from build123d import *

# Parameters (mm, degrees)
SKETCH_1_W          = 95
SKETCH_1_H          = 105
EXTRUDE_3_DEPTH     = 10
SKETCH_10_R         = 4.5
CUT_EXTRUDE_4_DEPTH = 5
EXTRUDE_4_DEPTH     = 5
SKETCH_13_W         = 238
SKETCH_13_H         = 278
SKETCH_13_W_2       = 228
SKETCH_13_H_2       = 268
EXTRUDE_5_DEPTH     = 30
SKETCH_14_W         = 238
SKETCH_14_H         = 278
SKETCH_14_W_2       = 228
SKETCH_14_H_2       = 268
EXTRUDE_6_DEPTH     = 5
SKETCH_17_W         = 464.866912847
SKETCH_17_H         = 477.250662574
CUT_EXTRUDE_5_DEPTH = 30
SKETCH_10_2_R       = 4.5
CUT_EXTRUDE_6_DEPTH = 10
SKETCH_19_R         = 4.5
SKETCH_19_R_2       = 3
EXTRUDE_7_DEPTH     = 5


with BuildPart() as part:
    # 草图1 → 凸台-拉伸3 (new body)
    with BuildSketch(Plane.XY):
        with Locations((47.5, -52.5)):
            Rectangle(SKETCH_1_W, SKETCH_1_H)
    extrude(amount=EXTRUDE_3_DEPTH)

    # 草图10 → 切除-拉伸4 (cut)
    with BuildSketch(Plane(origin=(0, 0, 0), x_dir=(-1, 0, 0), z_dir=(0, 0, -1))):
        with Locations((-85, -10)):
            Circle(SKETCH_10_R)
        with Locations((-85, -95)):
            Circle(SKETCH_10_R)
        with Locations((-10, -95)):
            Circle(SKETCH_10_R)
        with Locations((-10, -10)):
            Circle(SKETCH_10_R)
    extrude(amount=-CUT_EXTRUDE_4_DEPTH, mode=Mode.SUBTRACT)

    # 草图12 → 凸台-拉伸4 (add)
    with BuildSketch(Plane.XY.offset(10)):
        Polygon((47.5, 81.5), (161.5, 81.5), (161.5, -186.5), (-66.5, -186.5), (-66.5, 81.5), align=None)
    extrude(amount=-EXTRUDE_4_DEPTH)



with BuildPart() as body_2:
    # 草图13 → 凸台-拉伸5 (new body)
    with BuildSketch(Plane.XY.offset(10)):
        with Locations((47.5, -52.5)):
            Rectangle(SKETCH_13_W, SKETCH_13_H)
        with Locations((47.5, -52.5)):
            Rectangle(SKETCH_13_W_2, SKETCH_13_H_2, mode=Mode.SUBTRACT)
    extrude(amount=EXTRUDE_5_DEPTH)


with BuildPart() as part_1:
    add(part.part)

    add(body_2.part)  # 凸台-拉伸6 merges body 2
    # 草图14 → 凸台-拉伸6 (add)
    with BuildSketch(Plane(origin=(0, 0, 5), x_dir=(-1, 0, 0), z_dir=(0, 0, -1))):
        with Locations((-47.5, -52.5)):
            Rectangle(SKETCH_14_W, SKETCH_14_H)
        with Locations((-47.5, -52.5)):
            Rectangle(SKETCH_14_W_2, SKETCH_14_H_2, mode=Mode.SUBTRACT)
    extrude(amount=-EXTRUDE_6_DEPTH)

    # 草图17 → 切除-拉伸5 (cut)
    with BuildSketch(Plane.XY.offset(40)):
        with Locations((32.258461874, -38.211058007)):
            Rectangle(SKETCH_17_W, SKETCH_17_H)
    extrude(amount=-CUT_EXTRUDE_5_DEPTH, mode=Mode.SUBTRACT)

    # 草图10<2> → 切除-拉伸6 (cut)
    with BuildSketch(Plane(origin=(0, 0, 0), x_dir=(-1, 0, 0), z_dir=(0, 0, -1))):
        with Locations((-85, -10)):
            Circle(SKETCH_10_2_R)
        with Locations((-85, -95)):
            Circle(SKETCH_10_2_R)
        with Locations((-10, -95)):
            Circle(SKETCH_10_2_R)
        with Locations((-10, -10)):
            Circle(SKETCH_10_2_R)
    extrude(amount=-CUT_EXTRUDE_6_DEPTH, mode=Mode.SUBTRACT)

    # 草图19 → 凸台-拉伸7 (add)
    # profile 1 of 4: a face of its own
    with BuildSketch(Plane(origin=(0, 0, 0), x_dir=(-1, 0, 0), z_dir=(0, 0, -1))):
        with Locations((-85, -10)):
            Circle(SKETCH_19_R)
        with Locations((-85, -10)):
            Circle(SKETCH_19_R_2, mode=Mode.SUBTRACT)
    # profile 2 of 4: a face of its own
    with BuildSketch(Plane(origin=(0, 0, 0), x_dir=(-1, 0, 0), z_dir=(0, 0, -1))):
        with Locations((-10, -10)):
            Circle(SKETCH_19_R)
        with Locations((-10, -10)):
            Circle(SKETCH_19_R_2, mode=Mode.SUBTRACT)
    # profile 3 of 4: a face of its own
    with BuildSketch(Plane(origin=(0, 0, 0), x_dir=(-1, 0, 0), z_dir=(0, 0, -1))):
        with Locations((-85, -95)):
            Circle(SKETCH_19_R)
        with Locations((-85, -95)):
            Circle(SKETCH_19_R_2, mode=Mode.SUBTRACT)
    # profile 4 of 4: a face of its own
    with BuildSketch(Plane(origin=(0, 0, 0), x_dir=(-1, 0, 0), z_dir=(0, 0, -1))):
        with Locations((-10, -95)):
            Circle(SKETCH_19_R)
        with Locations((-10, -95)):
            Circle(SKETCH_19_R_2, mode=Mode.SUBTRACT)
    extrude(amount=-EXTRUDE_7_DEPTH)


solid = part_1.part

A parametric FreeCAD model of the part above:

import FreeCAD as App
import Part
import Sketcher
from FreeCAD import Vector


def add_polygon(sketch, points):
    """Adds a closed chain of lines whose ends are joined by coincident constraints."""
    first, n = sketch.GeometryCount, len(points)
    for a, b in zip(points, points[1:] + points[:1]):
        sketch.addGeometry(Part.LineSegment(App.Vector(*a, 0), App.Vector(*b, 0)), False)
    for i in range(n):
        sketch.addConstraint(Sketcher.Constraint("Coincident", first + i, 2, first + (i + 1) % n, 1))

doc = App.newDocument("Part")
body = doc.addObject("PartDesign::Body", "Body")

sketch1 = body.newObject("Sketcher::SketchObject", "Sketch")
sketch1.AttachmentSupport = (doc.getObject("XY_Plane"), [""])
sketch1.MapMode = "FlatFace"
add_polygon(sketch1, [(0, 0), (0, -105), (95, -105), (95, 0)])
sketch1.addConstraint([
    Sketcher.Constraint("Vertical", 0),
    Sketcher.Constraint("Horizontal", 1),
    Sketcher.Constraint("Vertical", 2),
    Sketcher.Constraint("Horizontal", 3),
    Sketcher.Constraint("Coincident", 3, 2, -1, 1),
    Sketcher.Constraint("DistanceX", 1, 1, 1, 2, 95.0),
    Sketcher.Constraint("DistanceY", 0, 2, 0, 1, 105.0),
])
pad1 = body.newObject("PartDesign::Pad", "Pad")
pad1.Profile = sketch1
pad1.Length = 10

sketch2 = body.newObject("Sketcher::SketchObject", "Sketch001")
sketch2.AttachmentSupport = (doc.getObject("XY_Plane"), [""])
sketch2.MapMode = "FlatFace"
sketch2.addGeometry([
    Part.Circle(Vector(85, -10, 0), Vector(0, 0, 1), 4.5),
    Part.Circle(Vector(85, -95, 0), Vector(0, 0, 1), 4.5),
    Part.Circle(Vector(10, -95, 0), Vector(0, 0, 1), 4.5),
    Part.Circle(Vector(10, -10, 0), Vector(0, 0, 1), 4.5),
], False)
sketch2.addConstraint([
    Sketcher.Constraint("Equal", 0, 1),
    Sketcher.Constraint("Equal", 1, 2),
    Sketcher.Constraint("Equal", 2, 3),
    Sketcher.Constraint("Horizontal", 1, 3, 2, 3),
    Sketcher.Constraint("Horizontal", 0, 3, 3, 3),
    Sketcher.Constraint("Vertical", 0, 3, 1, 3),
    Sketcher.Constraint("Vertical", 2, 3, 3, 3),
    Sketcher.Constraint("Diameter", 0, 9.0),
    Sketcher.Constraint("DistanceX", -1, 1, 0, 3, 85.0),
    Sketcher.Constraint("DistanceY", 0, 3, -1, 1, 10.0),
    Sketcher.Constraint("DistanceY", 1, 3, -1, 1, 95.0),
    Sketcher.Constraint("DistanceX", -1, 1, 2, 3, 10.0),
])
pocket1 = body.newObject("PartDesign::Pocket", "Pocket")
pocket1.Profile = sketch2
pocket1.Length = 5
pocket1.Reversed = True

sketch3 = body.newObject("Sketcher::SketchObject", "Sketch002")
sketch3.AttachmentSupport = (doc.getObject("XY_Plane"), [""])
sketch3.MapMode = "FlatFace"
sketch3.AttachmentOffset = App.Placement(Vector(0, 0, 10), App.Rotation())
add_polygon(sketch3, [(162, 82), (-66, 82), (-66, -186), (162, -186)])
sketch3.addConstraint([
    Sketcher.Constraint("Horizontal", 0),
    Sketcher.Constraint("Vertical", 1),
    Sketcher.Constraint("Horizontal", 2),
    Sketcher.Constraint("Vertical", 3),
    Sketcher.Constraint("DistanceX", 0, 2, 0, 1, 228.0),
    Sketcher.Constraint("DistanceY", 1, 2, 1, 1, 268.0),
    Sketcher.Constraint("DistanceX", 0, 2, -1, 1, 66.5),
    Sketcher.Constraint("DistanceY", -1, 1, 0, 2, 81.5),
])
pad2 = body.newObject("PartDesign::Pad", "Pad001")
pad2.Profile = sketch3
pad2.Length = 5
pad2.Reversed = True
body2 = doc.addObject("PartDesign::Body", "Body001")

sketch4 = body2.newObject("Sketcher::SketchObject", "Sketch003")
sketch4.AttachmentSupport = (doc.getObject("XY_Plane001"), [""])
sketch4.MapMode = "FlatFace"
sketch4.AttachmentOffset = App.Placement(Vector(0, 0, 10), App.Rotation())
add_polygon(sketch4, [(-72, 86), (-72, -192), (166, -192), (166, 86)])
add_polygon(sketch4, [(162, -186), (-66, -186), (-66, 82), (162, 82)])
sketch4.addConstraint([
    Sketcher.Constraint("Vertical", 0),
    Sketcher.Constraint("Horizontal", 1),
    Sketcher.Constraint("Vertical", 2),
    Sketcher.Constraint("Horizontal", 3),
    Sketcher.Constraint("Horizontal", 4),
    Sketcher.Constraint("Vertical", 5),
    Sketcher.Constraint("Horizontal", 6),
    Sketcher.Constraint("Vertical", 7),
    Sketcher.Constraint("DistanceX", 1, 1, 1, 2, 238.0),
    Sketcher.Constraint("DistanceX", 4, 2, 4, 1, 228.0),
    Sketcher.Constraint("DistanceY", 0, 2, 0, 1, 278.0),
    Sketcher.Constraint("DistanceY", 5, 1, 5, 2, 268.0),
    Sketcher.Constraint("DistanceX", 0, 2, 4, 2, 5.0),
    Sketcher.Constraint("DistanceY", 0, 2, 4, 2, 5.0),
    Sketcher.Constraint("DistanceX", 0, 2, -1, 1, 71.5),
    Sketcher.Constraint("DistanceY", 0, 2, -1, 1, 191.5),
])
pad3 = body2.newObject("PartDesign::Pad", "Pad002")
pad3.Profile = sketch4
pad3.Length = 30
body.AllowCompound = True
doc.recompute()

boolean = body.newObject("PartDesign::Boolean", "Boolean")
boolean.Type = "Fuse"
boolean.addObjects([body2])

sketch5 = body.newObject("Sketcher::SketchObject", "Sketch004")
sketch5.AttachmentSupport = (doc.getObject("XY_Plane"), [""])
sketch5.MapMode = "FlatFace"
sketch5.AttachmentOffset = App.Placement(Vector(0, 0, 5), App.Rotation())
add_polygon(sketch5, [(166, 86), (166, -192), (-72, -192), (-72, 86)])
add_polygon(sketch5, [(-66, -186), (162, -186), (162, 82), (-66, 82)])
sketch5.addConstraint([
    Sketcher.Constraint("Vertical", 0),
    Sketcher.Constraint("Horizontal", 1),
    Sketcher.Constraint("Vertical", 2),
    Sketcher.Constraint("Horizontal", 3),
    Sketcher.Constraint("Horizontal", 4),
    Sketcher.Constraint("Vertical", 5),
    Sketcher.Constraint("Horizontal", 6),
    Sketcher.Constraint("Vertical", 7),
    Sketcher.Constraint("DistanceX", 1, 2, 1, 1, 238.0),
    Sketcher.Constraint("DistanceX", 4, 1, 4, 2, 228.0),
    Sketcher.Constraint("DistanceY", 0, 2, 0, 1, 278.0),
    Sketcher.Constraint("DistanceY", 5, 1, 5, 2, 268.0),
    Sketcher.Constraint("DistanceX", 4, 2, 0, 2, 5.0),
    Sketcher.Constraint("DistanceY", 0, 2, 4, 2, 5.0),
    Sketcher.Constraint("DistanceX", -1, 1, 0, 2, 166.5),
    Sketcher.Constraint("DistanceY", 0, 2, -1, 1, 191.5),
])
pad4 = body.newObject("PartDesign::Pad", "Pad003")
pad4.Profile = sketch5
pad4.Length = 5

sketch6 = body.newObject("Sketcher::SketchObject", "Sketch005")
sketch6.AttachmentSupport = (doc.getObject("XY_Plane"), [""])
sketch6.MapMode = "FlatFace"
sketch6.AttachmentOffset = App.Placement(Vector(0, 0, 40), App.Rotation())
add_polygon(sketch6, [(-200, 200), (-200, -277), (265, -277), (265, 200)])
sketch6.addConstraint([
    Sketcher.Constraint("Vertical", 0),
    Sketcher.Constraint("Horizontal", 1),
    Sketcher.Constraint("Vertical", 2),
    Sketcher.Constraint("Horizontal", 3),
    Sketcher.Constraint("DistanceX", 1, 1, 1, 2, 464.866913),
    Sketcher.Constraint("DistanceY", 0, 2, 0, 1, 477.250663),
    Sketcher.Constraint("DistanceY", 0, 2, -1, 1, 276.836389),
    Sketcher.Constraint("DistanceX", -1, 1, 1, 2, 264.691918),
])
pocket2 = body.newObject("PartDesign::Pocket", "Pocket001")
pocket2.Profile = sketch6
pocket2.Length = 30

sketch7 = body.newObject("Sketcher::SketchObject", "Sketch006")
sketch7.AttachmentSupport = (doc.getObject("XY_Plane"), [""])
sketch7.MapMode = "FlatFace"
sketch7.addGeometry([
    Part.Circle(Vector(85, -10, 0), Vector(0, 0, 1), 4.5),
    Part.Circle(Vector(85, -95, 0), Vector(0, 0, 1), 4.5),
    Part.Circle(Vector(10, -95, 0), Vector(0, 0, 1), 4.5),
    Part.Circle(Vector(10, -10, 0), Vector(0, 0, 1), 4.5),
], False)
sketch7.addConstraint([
    Sketcher.Constraint("Equal", 0, 1),
    Sketcher.Constraint("Equal", 1, 2),
    Sketcher.Constraint("Equal", 2, 3),
    Sketcher.Constraint("Horizontal", 1, 3, 2, 3),
    Sketcher.Constraint("Horizontal", 0, 3, 3, 3),
    Sketcher.Constraint("Vertical", 0, 3, 1, 3),
    Sketcher.Constraint("Vertical", 2, 3, 3, 3),
    Sketcher.Constraint("Diameter", 0, 9.0),
    Sketcher.Constraint("DistanceX", -1, 1, 0, 3, 85.0),
    Sketcher.Constraint("DistanceY", 0, 3, -1, 1, 10.0),
    Sketcher.Constraint("DistanceY", 1, 3, -1, 1, 95.0),
    Sketcher.Constraint("DistanceX", -1, 1, 2, 3, 10.0),
])
pocket3 = body.newObject("PartDesign::Pocket", "Pocket002")
pocket3.Profile = sketch7
pocket3.Length = 10
pocket3.Reversed = True

sketch8 = body.newObject("Sketcher::SketchObject", "Sketch007")
sketch8.AttachmentSupport = (doc.getObject("XY_Plane"), [""])
sketch8.MapMode = "FlatFace"
sketch8.addGeometry([
    Part.Circle(Vector(85, -10, 0), Vector(0, 0, 1), 4.5),
    Part.Circle(Vector(85, -10, 0), Vector(0, 0, 1), 3),
    Part.Circle(Vector(10, -10, 0), Vector(0, 0, 1), 4.5),
    Part.Circle(Vector(10, -10, 0), Vector(0, 0, 1), 3),
    Part.Circle(Vector(85, -95, 0), Vector(0, 0, 1), 4.5),
    Part.Circle(Vector(85, -95, 0), Vector(0, 0, 1), 3),
    Part.Circle(Vector(10, -95, 0), Vector(0, 0, 1), 4.5),
    Part.Circle(Vector(10, -95, 0), Vector(0, 0, 1), 3),
], False)
sketch8.addConstraint([
    Sketcher.Constraint("Coincident", 1, 3, 0, 3),
    Sketcher.Constraint("Coincident", 3, 3, 2, 3),
    Sketcher.Constraint("Coincident", 5, 3, 4, 3),
    Sketcher.Constraint("Coincident", 7, 3, 6, 3),
    Sketcher.Constraint("Equal", 0, 2),
    Sketcher.Constraint("Equal", 1, 3),
    Sketcher.Constraint("Equal", 2, 4),
    Sketcher.Constraint("Equal", 3, 5),
    Sketcher.Constraint("Equal", 4, 6),
    Sketcher.Constraint("Equal", 5, 7),
    Sketcher.Constraint("Horizontal", 1, 3, 2, 3),
    Sketcher.Constraint("Horizontal", 5, 3, 6, 3),
    Sketcher.Constraint("Vertical", 1, 3, 4, 3),
    Sketcher.Constraint("Vertical", 3, 3, 6, 3),
    Sketcher.Constraint("Diameter", 0, 9.0),
    Sketcher.Constraint("Diameter", 1, 6.0),
    Sketcher.Constraint("DistanceX", -1, 1, 0, 3, 85.0),
    Sketcher.Constraint("DistanceY", 0, 3, -1, 1, 10.0),
    Sketcher.Constraint("DistanceX", -1, 1, 2, 3, 10.0),
    Sketcher.Constraint("DistanceY", 4, 3, -1, 1, 95.0),
])
pad5 = body.newObject("PartDesign::Pad", "Pad004")
pad5.Profile = sketch8
pad5.Length = 5

doc.recompute()
